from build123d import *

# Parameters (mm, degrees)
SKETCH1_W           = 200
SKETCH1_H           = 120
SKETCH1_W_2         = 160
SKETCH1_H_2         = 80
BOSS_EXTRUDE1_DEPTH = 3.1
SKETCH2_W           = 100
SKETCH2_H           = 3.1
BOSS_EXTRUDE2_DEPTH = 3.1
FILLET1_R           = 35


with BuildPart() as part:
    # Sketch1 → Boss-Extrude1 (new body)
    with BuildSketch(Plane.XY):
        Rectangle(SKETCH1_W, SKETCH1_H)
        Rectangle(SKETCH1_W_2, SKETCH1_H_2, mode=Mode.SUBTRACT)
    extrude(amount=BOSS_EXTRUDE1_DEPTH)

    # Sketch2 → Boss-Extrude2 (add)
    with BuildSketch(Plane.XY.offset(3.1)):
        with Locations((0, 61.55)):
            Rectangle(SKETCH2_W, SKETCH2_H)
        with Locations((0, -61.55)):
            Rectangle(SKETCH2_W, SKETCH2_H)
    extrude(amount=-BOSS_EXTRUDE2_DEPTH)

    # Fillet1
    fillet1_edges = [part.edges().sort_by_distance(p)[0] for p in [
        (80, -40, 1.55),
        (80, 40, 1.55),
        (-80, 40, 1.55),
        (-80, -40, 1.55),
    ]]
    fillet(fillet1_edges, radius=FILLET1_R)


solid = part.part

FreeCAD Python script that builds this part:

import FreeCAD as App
import Part
import Sketcher
Q = App.Units.Quantity


def edges_at(feature, points):
    """Names of the edges that pass closest to the given points."""
    edges = feature.Shape.Edges
    near = lambda p: min(range(len(edges)), key=lambda i: edges[i].distToShape(Part.Vertex(*p))[0])
    return sorted({f"Edge{near(p) + 1}" for p in points})

doc = App.newDocument("Part")
params = doc.addObject("Spreadsheet::Sheet", "Params")
for row, (alias, value) in enumerate([
    ("sketch1_width", "200 mm"),
    ("sketch1_width2", "160 mm"),
    ("sketch1_height", "120 mm"),
    ("sketch1_height2", "80 mm"),
    ("pad1_length", "3.1 mm"),
    ("sketch2_width", "100 mm"),
    ("sketch2_height", "3.1 mm"),
    ("pad2_length", "3.1 mm"),
    ("fillet_radius", "35 mm"),
], start=1):
    params.set(f"A{row}", alias)
    params.set(f"B{row}", "=" + value)
    params.setAlias(f"B{row}", alias)

body = doc.addObject("PartDesign::Body", "Body")

sketch1 = doc.addObject("Sketcher::SketchObject", "Sketch")
body.addObject(sketch1)
sketch1.AttachmentSupport = (doc.XY_Plane, [""])
sketch1.MapMode = "FlatFace"
sketch1.addGeometry([
    Part.LineSegment(App.Vector(-100, 60, 0), App.Vector(-100, -60, 0)),
    Part.LineSegment(App.Vector(-100, -60, 0), App.Vector(100, -60, 0)),
    Part.LineSegment(App.Vector(100, -60, 0), App.Vector(100, 60, 0)),
    Part.LineSegment(App.Vector(100, 60, 0), App.Vector(-100, 60, 0)),
    Part.LineSegment(App.Vector(80, -40, 0), App.Vector(-80, -40, 0)),
    Part.LineSegment(App.Vector(-80, -40, 0), App.Vector(-80, 40, 0)),
    Part.LineSegment(App.Vector(-80, 40, 0), App.Vector(80, 40, 0)),
    Part.LineSegment(App.Vector(80, 40, 0), App.Vector(80, -40, 0)),
], False)
sketch1.addConstraint([
    Sketcher.Constraint("Coincident", 0, 2, 1, 1),
    Sketcher.Constraint("Coincident", 1, 2, 2, 1),
    Sketcher.Constraint("Coincident", 2, 2, 3, 1),
    Sketcher.Constraint("Coincident", 3, 2, 0, 1),
    Sketcher.Constraint("Coincident", 4, 2, 5, 1),
    Sketcher.Constraint("Coincident", 5, 2, 6, 1),
    Sketcher.Constraint("Coincident", 6, 2, 7, 1),
    Sketcher.Constraint("Coincident", 7, 2, 4, 1),
    Sketcher.Constraint("Vertical", 0),
    Sketcher.Constraint("Horizontal", 1),
    Sketcher.Constraint("Vertical", 2),
    Sketcher.Constraint("Horizontal", 3),
    Sketcher.Constraint("Horizontal", 4),
    Sketcher.Constraint("Vertical", 5),
    Sketcher.Constraint("Horizontal", 6),
    Sketcher.Constraint("Vertical", 7),
    Sketcher.Constraint("Symmetric", 0, 2, 2, 2, -1, 1),
    Sketcher.Constraint("Symmetric", 4, 2, 6, 2, -1, 1),
    Sketcher.Constraint("DistanceX", 1, 1, 1, 2, Q("200 mm")),
    Sketcher.Constraint("DistanceX", 4, 2, 4, 1, Q("160 mm")),
    Sketcher.Constraint("DistanceY", 0, 2, 0, 1, Q("120 mm")),
    Sketcher.Constraint("DistanceY", 5, 1, 5, 2, Q("80 mm")),
])
sketch1.setExpression("Constraints[18]", "Params.sketch1_width")
sketch1.setExpression("Constraints[19]", "Params.sketch1_width2")
sketch1.setExpression("Constraints[20]", "Params.sketch1_height")
sketch1.setExpression("Constraints[21]", "Params.sketch1_height2")
pad1 = doc.addObject("PartDesign::Pad", "Pad")
body.addObject(pad1)
pad1.Profile = sketch1
pad1.setExpression("Length", "Params.pad1_length")

sketch2 = doc.addObject("Sketcher::SketchObject", "Sketch001")
body.addObject(sketch2)
sketch2.AttachmentSupport = (doc.XY_Plane, [""])
sketch2.MapMode = "FlatFace"
sketch2.AttachmentOffset = App.Placement(App.Vector(0, 0, 3.1), App.Rotation())
sketch2.addGeometry([
    Part.LineSegment(App.Vector(-50, 63.1, 0), App.Vector(-50, 60, 0)),
    Part.LineSegment(App.Vector(-50, 60, 0), App.Vector(50, 60, 0)),
    Part.LineSegment(App.Vector(50, 60, 0), App.Vector(50, 63.1, 0)),
    Part.LineSegment(App.Vector(50, 63.1, 0), App.Vector(-50, 63.1, 0)),
    Part.LineSegment(App.Vector(-50, -60, 0), App.Vector(-50, -63.1, 0)),
    Part.LineSegment(App.Vector(-50, -63.1, 0), App.Vector(50, -63.1, 0)),
    Part.LineSegment(App.Vector(50, -63.1, 0), App.Vector(50, -60, 0)),
    Part.LineSegment(App.Vector(50, -60, 0), App.Vector(-50, -60, 0)),
], False)
sketch2.addConstraint([
    Sketcher.Constraint("Coincident", 0, 2, 1, 1),
    Sketcher.Constraint("Coincident", 1, 2, 2, 1),
    Sketcher.Constraint("Coincident", 2, 2, 3, 1),
    Sketcher.Constraint("Coincident", 3, 2, 0, 1),
    Sketcher.Constraint("Coincident", 4, 2, 5, 1),
    Sketcher.Constraint("Coincident", 5, 2, 6, 1),
    Sketcher.Constraint("Coincident", 6, 2, 7, 1),
    Sketcher.Constraint("Coincident", 7, 2, 4, 1),
    Sketcher.Constraint("Vertical", 0),
    Sketcher.Constraint("Horizontal", 1),
    Sketcher.Constraint("Vertical", 2),
    Sketcher.Constraint("Horizontal", 3),
    Sketcher.Constraint("Vertical", 4),
    Sketcher.Constraint("Horizontal", 5),
    Sketcher.Constraint("Vertical", 6),
    Sketcher.Constraint("Horizontal", 7),
    Sketcher.Constraint("Symmetric", 2, 2, 4, 2, -1, 1),
    Sketcher.Constraint("Symmetric", 0, 2, 6, 2, -1, 1),
    Sketcher.Constraint("Vertical", 3, 2, 4, 2),
    Sketcher.Constraint("DistanceX", 1, 1, 1, 2, Q("100 mm")),
    Sketcher.Constraint("DistanceY", 0, 2, 0, 1, Q("3.1 mm")),
    Sketcher.Constraint("DistanceY", -1, 1, 0, 2, Q("60 mm")),
])
sketch2.setExpression("Constraints[19]", "Params.sketch2_width")
sketch2.setExpression("Constraints[20]", "Params.sketch2_height")
pad2 = doc.addObject("PartDesign::Pad", "Pad001")
body.addObject(pad2)
pad2.Profile = sketch2
pad2.setExpression("Length", "Params.pad2_length")
pad2.Reversed = True
doc.recompute()

fillet = doc.addObject("PartDesign::Fillet", "Fillet")
body.addObject(fillet)
fillet.Base = (pad2, edges_at(pad2, [
    (80, -40, 1.55),
    (80, 40, 1.55),
    (-80, 40, 1.55),
    (-80, -40, 1.55),
]))
fillet.setExpression("Radius", "Params.fillet_radius")

doc.recompute()
